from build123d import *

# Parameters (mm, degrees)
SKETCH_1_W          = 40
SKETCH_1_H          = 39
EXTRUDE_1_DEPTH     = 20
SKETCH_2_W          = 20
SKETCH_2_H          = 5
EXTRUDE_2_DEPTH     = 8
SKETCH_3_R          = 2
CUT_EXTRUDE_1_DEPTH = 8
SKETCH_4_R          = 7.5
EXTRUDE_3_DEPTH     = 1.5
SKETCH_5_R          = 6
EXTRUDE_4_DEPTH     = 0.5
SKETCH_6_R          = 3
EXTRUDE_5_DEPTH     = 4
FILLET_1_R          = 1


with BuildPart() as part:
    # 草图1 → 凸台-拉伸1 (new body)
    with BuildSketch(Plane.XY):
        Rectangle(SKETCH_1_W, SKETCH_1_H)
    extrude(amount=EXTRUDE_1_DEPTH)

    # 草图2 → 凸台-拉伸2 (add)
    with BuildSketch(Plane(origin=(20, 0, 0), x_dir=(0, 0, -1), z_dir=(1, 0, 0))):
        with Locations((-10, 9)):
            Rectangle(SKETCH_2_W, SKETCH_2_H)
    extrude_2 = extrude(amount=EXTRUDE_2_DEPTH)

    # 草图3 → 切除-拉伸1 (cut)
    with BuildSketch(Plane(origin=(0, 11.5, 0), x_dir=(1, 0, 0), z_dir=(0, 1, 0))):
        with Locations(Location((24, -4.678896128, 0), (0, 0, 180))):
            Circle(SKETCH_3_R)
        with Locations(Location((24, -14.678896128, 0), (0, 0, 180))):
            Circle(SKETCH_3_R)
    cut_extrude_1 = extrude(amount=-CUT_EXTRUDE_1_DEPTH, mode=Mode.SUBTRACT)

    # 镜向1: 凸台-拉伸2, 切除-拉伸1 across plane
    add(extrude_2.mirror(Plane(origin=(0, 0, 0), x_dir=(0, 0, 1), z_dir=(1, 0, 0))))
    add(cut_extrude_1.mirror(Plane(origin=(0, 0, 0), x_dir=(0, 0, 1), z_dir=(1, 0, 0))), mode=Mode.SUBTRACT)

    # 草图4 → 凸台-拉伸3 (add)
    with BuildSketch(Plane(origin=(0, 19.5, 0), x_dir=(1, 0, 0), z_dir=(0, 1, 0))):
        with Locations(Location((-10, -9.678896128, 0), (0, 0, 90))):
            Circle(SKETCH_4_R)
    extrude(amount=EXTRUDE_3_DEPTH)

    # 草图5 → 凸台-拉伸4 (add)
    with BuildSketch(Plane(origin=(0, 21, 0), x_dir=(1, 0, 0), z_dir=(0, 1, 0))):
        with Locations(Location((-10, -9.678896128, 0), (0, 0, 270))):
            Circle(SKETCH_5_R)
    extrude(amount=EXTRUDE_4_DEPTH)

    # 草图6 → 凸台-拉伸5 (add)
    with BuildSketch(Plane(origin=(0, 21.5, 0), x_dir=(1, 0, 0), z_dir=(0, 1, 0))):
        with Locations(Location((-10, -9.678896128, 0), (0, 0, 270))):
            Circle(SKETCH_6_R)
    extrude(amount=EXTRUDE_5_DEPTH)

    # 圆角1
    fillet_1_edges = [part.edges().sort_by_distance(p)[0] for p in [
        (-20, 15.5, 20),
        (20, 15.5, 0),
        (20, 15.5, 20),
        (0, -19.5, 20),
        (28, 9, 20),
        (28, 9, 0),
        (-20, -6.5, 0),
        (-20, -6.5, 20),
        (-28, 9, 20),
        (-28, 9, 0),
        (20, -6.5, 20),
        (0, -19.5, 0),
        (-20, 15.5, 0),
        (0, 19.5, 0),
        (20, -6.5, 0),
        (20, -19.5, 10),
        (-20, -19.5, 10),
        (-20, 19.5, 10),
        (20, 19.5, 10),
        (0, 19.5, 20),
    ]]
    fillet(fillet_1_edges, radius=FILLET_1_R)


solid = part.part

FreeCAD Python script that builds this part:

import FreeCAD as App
import Part
import Sketcher

V = App.Vector
Q = App.Units.Quantity


def edges_at(feature, points):
    """Names of the edges that pass closest to the given points."""
    edges = feature.Shape.Edges
    near = lambda p: min(range(len(edges)), key=lambda i: edges[i].distToShape(Part.Vertex(*p))[0])
    return sorted({f"Edge{near(p) + 1}" for p in points})

doc = App.newDocument("Part")
body = doc.addObject("PartDesign::Body", "Body")

sketch1 = doc.addObject("Sketcher::SketchObject", "Sketch")
body.addObject(sketch1)
sketch1.AttachmentSupport = (doc.XY_Plane, [""])
sketch1.MapMode = "FlatFace"
sketch1.addGeometry([
    Part.LineSegment(V(-20, 20, 0), V(-20, -20, 0)),
    Part.LineSegment(V(-20, -20, 0), V(20, -20, 0)),
    Part.LineSegment(V(20, -20, 0), V(20, 20, 0)),
    Part.LineSegment(V(20, 20, 0), V(-20, 20, 0)),
], False)
sketch1.addConstraint([
    Sketcher.Constraint("Coincident", 0, 2, 1, 1),
    Sketcher.Constraint("Coincident", 1, 2, 2, 1),
    Sketcher.Constraint("Coincident", 2, 2, 3, 1),
    Sketcher.Constraint("Coincident", 3, 2, 0, 1),
    Sketcher.Constraint("Vertical", 0),
    Sketcher.Constraint("Horizontal", 1),
    Sketcher.Constraint("Vertical", 2),
    Sketcher.Constraint("Horizontal", 3),
    Sketcher.Constraint("Symmetric", 0, 2, 2, 2, -1, 1),
    Sketcher.Constraint("DistanceX", 1, 1, 1, 2, Q("40 mm")),
    Sketcher.Constraint("DistanceY", 0, 2, 0, 1, Q("39 mm")),
])
pad1 = doc.addObject("PartDesign::Pad", "Pad")
body.addObject(pad1)
pad1.Profile = sketch1
pad1.Length = 20

sketch2 = doc.addObject("Sketcher::SketchObject", "Sketch001")
body.addObject(sketch2)
sketch2.AttachmentSupport = (doc.YZ_Plane, [""])
sketch2.MapMode = "FlatFace"
sketch2.AttachmentOffset = App.Placement(V(0, 0, 20), App.Rotation())
sketch2.addGeometry([
    Part.LineSegment(V(12, 20, 0), V(6, 20, 0)),
    Part.LineSegment(V(6, 20, 0), V(6, 0, 0)),
    Part.LineSegment(V(6, 0, 0), V(12, 0, 0)),
    Part.LineSegment(V(12, 0, 0), V(12, 20, 0)),
], False)
sketch2.addConstraint([
    Sketcher.Constraint("Coincident", 0, 2, 1, 1),
    Sketcher.Constraint("Coincident", 1, 2, 2, 1),
    Sketcher.Constraint("Coincident", 2, 2, 3, 1),
    Sketcher.Constraint("Coincident", 3, 2, 0, 1),
    Sketcher.Constraint("Horizontal", 0),
    Sketcher.Constraint("Vertical", 1),
    Sketcher.Constraint("Horizontal", 2),
    Sketcher.Constraint("Vertical", 3),
    Sketcher.Constraint("PointOnObject", 1, 2, -1),
    Sketcher.Constraint("DistanceX", 0, 2, 0, 1, Q("5 mm")),
    Sketcher.Constraint("DistanceY", 1, 2, 1, 1, Q("20 mm")),
    Sketcher.Constraint("DistanceX", -1, 1, 0, 2, Q("6.5 mm")),
])
pad2 = doc.addObject("PartDesign::Pad", "Pad001")
body.addObject(pad2)
pad2.Profile = sketch2
pad2.Length = 8

sketch3 = doc.addObject("Sketcher::SketchObject", "Sketch002")
body.addObject(sketch3)
sketch3.AttachmentSupport = (doc.XZ_Plane, [""])
sketch3.MapMode = "FlatFace"
sketch3.AttachmentOffset = App.Placement(V(0, 0, -11.5), App.Rotation())
sketch3.addGeometry([
    Part.Circle(V(24, 4.7, 0), V(0, 0, 1), 2),
    Part.Circle(V(24, 14.7, 0), V(0, 0, 1), 2),
], False)
sketch3.addConstraint([
    Sketcher.Constraint("Equal", 0, 1),
    Sketcher.Constraint("Vertical", 0, 3, 1, 3),
    Sketcher.Constraint("Diameter", 0, Q("4 mm")),
    Sketcher.Constraint("DistanceX", -1, 1, 0, 3, Q("24 mm")),
    Sketcher.Constraint("DistanceY", 0, 3, 1, 3, Q("10 mm")),
    Sketcher.Constraint("DistanceY", -1, 1, 0, 3, Q("4.678896 mm")),
])
pocket1 = doc.addObject("PartDesign::Pocket", "Pocket")
body.addObject(pocket1)
pocket1.Profile = sketch3
pocket1.Length = 8
pocket1.Reversed = True
doc.recompute()

mirrored = doc.addObject("PartDesign::Mirrored", "Mirrored")
body.addObject(mirrored)
mirrored.Originals = [pad2, pocket1]
mirrored.MirrorPlane = (doc.YZ_Plane, [""])
body.Tip = mirrored

sketch4 = doc.addObject("Sketcher::SketchObject", "Sketch003")
body.addObject(sketch4)
sketch4.AttachmentSupport = (doc.XZ_Plane, [""])
sketch4.MapMode = "FlatFace"
sketch4.AttachmentOffset = App.Placement(V(0, 0, -19.5), App.Rotation())
sketch4.addGeometry(Part.Circle(V(-10, 10, 0), V(0, 0, 1), 8), False)
sketch4.addConstraint([
    Sketcher.Constraint("Diameter", 0, Q("15 mm")),
    Sketcher.Constraint("DistanceX", 0, 3, -1, 1, Q("10 mm")),
    Sketcher.Constraint("DistanceY", -1, 1, 0, 3, Q("9.678896 mm")),
])
pad3 = doc.addObject("PartDesign::Pad", "Pad002")
body.addObject(pad3)
pad3.Profile = sketch4
pad3.Length = 1.5
pad3.Reversed = True

sketch5 = doc.addObject("Sketcher::SketchObject", "Sketch004")
body.addObject(sketch5)
sketch5.AttachmentSupport = (doc.XZ_Plane, [""])
sketch5.MapMode = "FlatFace"
sketch5.AttachmentOffset = App.Placement(V(0, 0, -21), App.Rotation())
sketch5.addGeometry(Part.Circle(V(-10, 10, 0), V(0, 0, 1), 6), False)
sketch5.addConstraint([
    Sketcher.Constraint("Diameter", 0, Q("12 mm")),
    Sketcher.Constraint("DistanceX", 0, 3, -1, 1, Q("10 mm")),
    Sketcher.Constraint("DistanceY", -1, 1, 0, 3, Q("9.678896 mm")),
])
pad4 = doc.addObject("PartDesign::Pad", "Pad003")
body.addObject(pad4)
pad4.Profile = sketch5
pad4.Length = 0.5
pad4.Reversed = True

sketch6 = doc.addObject("Sketcher::SketchObject", "Sketch005")
body.addObject(sketch6)
sketch6.AttachmentSupport = (doc.XZ_Plane, [""])
sketch6.MapMode = "FlatFace"
sketch6.AttachmentOffset = App.Placement(V(0, 0, -21.5), App.Rotation())
sketch6.addGeometry(Part.Circle(V(-10, 9.7, 0), V(0, 0, 1), 3), False)
sketch6.addConstraint([
    Sketcher.Constraint("Diameter", 0, Q("6 mm")),
    Sketcher.Constraint("DistanceX", 0, 3, -1, 1, Q("10 mm")),
    Sketcher.Constraint("DistanceY", -1, 1, 0, 3, Q("9.678896 mm")),
])
pad5 = doc.addObject("PartDesign::Pad", "Pad004")
body.addObject(pad5)
pad5.Profile = sketch6
pad5.Length = 4
pad5.Reversed = True
doc.recompute()

fillet = doc.addObject("PartDesign::Fillet", "Fillet")
body.addObject(fillet)
fillet.Base = (pad5, edges_at(pad5, [
    (-20, 15.5, 20),
    (20, 15.5, 0),
    (20, 15.5, 20),
    (0, -19.5, 20),
    (28, 9, 20),
    (28, 9, 0),
    (-20, -6.5, 0),
    (-20, -6.5, 20),
    (-28, 9, 20),
    (-28, 9, 0),
    (20, -6.5, 20),
    (0, -19.5, 0),
    (-20, 15.5, 0),
    (0, 19.5, 0),
    (20, -6.5, 0),
    (20, -19.5, 10),
    (-20, -19.5, 10),
    (-20, 19.5, 10),
    (20, 19.5, 10),
    (0, 19.5, 20),
]))
fillet.Radius = 1

doc.recompute()
